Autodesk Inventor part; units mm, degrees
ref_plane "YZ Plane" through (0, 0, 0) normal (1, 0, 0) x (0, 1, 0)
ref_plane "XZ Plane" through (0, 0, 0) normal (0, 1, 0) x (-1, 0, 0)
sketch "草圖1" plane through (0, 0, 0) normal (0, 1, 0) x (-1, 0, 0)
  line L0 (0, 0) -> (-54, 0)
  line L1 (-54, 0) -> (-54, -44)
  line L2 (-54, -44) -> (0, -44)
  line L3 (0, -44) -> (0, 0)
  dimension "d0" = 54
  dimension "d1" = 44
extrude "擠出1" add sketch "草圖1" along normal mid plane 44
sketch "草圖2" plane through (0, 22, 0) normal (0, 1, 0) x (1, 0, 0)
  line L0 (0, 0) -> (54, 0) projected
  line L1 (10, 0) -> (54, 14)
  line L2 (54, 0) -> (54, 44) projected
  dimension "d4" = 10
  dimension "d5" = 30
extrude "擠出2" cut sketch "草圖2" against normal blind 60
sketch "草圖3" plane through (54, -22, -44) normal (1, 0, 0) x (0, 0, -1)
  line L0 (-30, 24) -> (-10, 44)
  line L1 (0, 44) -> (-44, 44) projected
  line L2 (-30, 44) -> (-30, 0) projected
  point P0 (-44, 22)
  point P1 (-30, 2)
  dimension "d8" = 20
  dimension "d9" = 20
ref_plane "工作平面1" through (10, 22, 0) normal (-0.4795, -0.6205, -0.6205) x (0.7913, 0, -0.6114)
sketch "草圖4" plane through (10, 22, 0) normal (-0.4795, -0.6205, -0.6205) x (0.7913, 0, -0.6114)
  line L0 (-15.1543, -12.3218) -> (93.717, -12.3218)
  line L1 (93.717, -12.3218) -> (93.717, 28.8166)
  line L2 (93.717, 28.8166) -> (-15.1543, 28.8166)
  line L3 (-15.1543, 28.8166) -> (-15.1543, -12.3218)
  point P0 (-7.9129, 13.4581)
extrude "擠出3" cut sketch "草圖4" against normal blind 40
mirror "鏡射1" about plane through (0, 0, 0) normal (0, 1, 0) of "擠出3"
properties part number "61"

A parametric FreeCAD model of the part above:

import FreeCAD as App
import Part
import Sketcher

doc = App.newDocument("Part")
body = doc.addObject("PartDesign::Body", "Body")

sketch1 = body.newObject("Sketcher::SketchObject", "Sketch")
sketch1.AttachmentSupport = (doc.getObject("XZ_Plane"), [""])
sketch1.MapMode = "FlatFace"
sketch1.addGeometry(Part.LineSegment(App.Vector(0, -44, 0), App.Vector(0, 0, 0)), False)
sketch1.addGeometry(Part.LineSegment(App.Vector(0, 0, 0), App.Vector(54, 0, 0)), False)
sketch1.addGeometry(Part.LineSegment(App.Vector(54, 0, 0), App.Vector(54, -44, 0)), False)
sketch1.addGeometry(Part.LineSegment(App.Vector(54, -44, 0), App.Vector(0, -44, 0)), False)
sketch1.addConstraint(Sketcher.Constraint("Coincident", 0, 2, 1, 1))
sketch1.addConstraint(Sketcher.Constraint("Coincident", 1, 2, 2, 1))
sketch1.addConstraint(Sketcher.Constraint("Coincident", 2, 2, 3, 1))
sketch1.addConstraint(Sketcher.Constraint("Coincident", 3, 2, 0, 1))
sketch1.addConstraint(Sketcher.Constraint("Vertical", 0))
sketch1.addConstraint(Sketcher.Constraint("Horizontal", 1))
sketch1.addConstraint(Sketcher.Constraint("Vertical", 2))
sketch1.addConstraint(Sketcher.Constraint("Horizontal", 3))
sketch1.addConstraint(Sketcher.Constraint("Coincident", 0, 2, -1, 1))
sketch1.addConstraint(Sketcher.Constraint("DistanceX", 1, 1, 1, 2, 54.0))
sketch1.addConstraint(Sketcher.Constraint("DistanceY", 0, 1, 0, 2, 44.0))
pad1 = body.newObject("PartDesign::Pad", "Pad")
pad1.Profile = sketch1
pad1.Length = 44
pad1.Midplane = True

sketch2 = body.newObject("Sketcher::SketchObject", "Sketch001")
sketch2.AttachmentSupport = (doc.getObject("XZ_Plane"), [""])
sketch2.MapMode = "FlatFace"
sketch2.AttachmentOffset = App.Placement(App.Vector(0, 0, -22), App.Rotation())
sketch2.addGeometry(Part.LineSegment(App.Vector(54, -14, 0), App.Vector(10, 0, 0)), False)
sketch2.addGeometry(Part.LineSegment(App.Vector(10, 0, 0), App.Vector(54, 0, 0)), False)
sketch2.addGeometry(Part.LineSegment(App.Vector(54, 0, 0), App.Vector(54, -14, 0)), False)
sketch2.addConstraint(Sketcher.Constraint("Coincident", 0, 2, 1, 1))
sketch2.addConstraint(Sketcher.Constraint("Coincident", 1, 2, 2, 1))
sketch2.addConstraint(Sketcher.Constraint("Coincident", 2, 2, 0, 1))
sketch2.addConstraint(Sketcher.Constraint("Horizontal", 1))
sketch2.addConstraint(Sketcher.Constraint("Vertical", 2))
sketch2.addConstraint(Sketcher.Constraint("PointOnObject", 0, 2, -1))
sketch2.addConstraint(Sketcher.Constraint("DistanceX", -1, 1, 0, 2, 10.0))
sketch2.addConstraint(Sketcher.Constraint("DistanceX", 1, 1, 1, 2, 44.0))
sketch2.addConstraint(Sketcher.Constraint("DistanceY", 2, 2, 2, 1, 14.0))
pocket1 = body.newObject("PartDesign::Pocket", "Pocket")
pocket1.Profile = sketch2
pocket1.Length = 60
pocket1.Reversed = True

sketch3 = body.newObject("Sketcher::SketchObject", "Sketch002")
sketch3.Placement = App.Placement(App.Vector(10, 22, 0), App.Rotation(App.Vector(0.791287386, -0.000033912, -0.611444414), App.Vector(0.379387662, -0.78419681, 0.49101972), App.Vector(-0.47950941, -0.620512178, -0.620512178), "ZXY"))
sketch3.addGeometry(Part.LineSegment(App.Vector(-15.1543, 28.8166, 0), App.Vector(-15.1543, -12.3218, 0)), False)
sketch3.addGeometry(Part.LineSegment(App.Vector(-15.1543, -12.3218, 0), App.Vector(93.717, -12.3218, 0)), False)
sketch3.addGeometry(Part.LineSegment(App.Vector(93.717, -12.3218, 0), App.Vector(93.717, 28.8166, 0)), False)
sketch3.addGeometry(Part.LineSegment(App.Vector(93.717, 28.8166, 0), App.Vector(-15.1543, 28.8166, 0)), False)
sketch3.addConstraint(Sketcher.Constraint("Coincident", 0, 2, 1, 1))
sketch3.addConstraint(Sketcher.Constraint("Coincident", 1, 2, 2, 1))
sketch3.addConstraint(Sketcher.Constraint("Coincident", 2, 2, 3, 1))
sketch3.addConstraint(Sketcher.Constraint("Coincident", 3, 2, 0, 1))
sketch3.addConstraint(Sketcher.Constraint("Vertical", 0))
sketch3.addConstraint(Sketcher.Constraint("Horizontal", 1))
sketch3.addConstraint(Sketcher.Constraint("Vertical", 2))
sketch3.addConstraint(Sketcher.Constraint("Horizontal", 3))
sketch3.addConstraint(Sketcher.Constraint("DistanceX", 1, 1, 1, 2, 108.8713))
sketch3.addConstraint(Sketcher.Constraint("DistanceY", 0, 2, 0, 1, 41.1384))
sketch3.addConstraint(Sketcher.Constraint("DistanceX", -1, 1, 1, 2, 93.717))
sketch3.addConstraint(Sketcher.Constraint("DistanceY", 0, 2, -1, 1, 12.3218))
pocket2 = body.newObject("PartDesign::Pocket", "Pocket001")
pocket2.Profile = sketch3
pocket2.Length = 40
doc.recompute()

mirrored = body.newObject("PartDesign::Mirrored", "Mirrored")
mirrored.Originals = [pocket2]
mirrored.MirrorPlane = (doc.getObject("XZ_Plane"), [""])
body.Tip = mirrored

doc.recompute()
